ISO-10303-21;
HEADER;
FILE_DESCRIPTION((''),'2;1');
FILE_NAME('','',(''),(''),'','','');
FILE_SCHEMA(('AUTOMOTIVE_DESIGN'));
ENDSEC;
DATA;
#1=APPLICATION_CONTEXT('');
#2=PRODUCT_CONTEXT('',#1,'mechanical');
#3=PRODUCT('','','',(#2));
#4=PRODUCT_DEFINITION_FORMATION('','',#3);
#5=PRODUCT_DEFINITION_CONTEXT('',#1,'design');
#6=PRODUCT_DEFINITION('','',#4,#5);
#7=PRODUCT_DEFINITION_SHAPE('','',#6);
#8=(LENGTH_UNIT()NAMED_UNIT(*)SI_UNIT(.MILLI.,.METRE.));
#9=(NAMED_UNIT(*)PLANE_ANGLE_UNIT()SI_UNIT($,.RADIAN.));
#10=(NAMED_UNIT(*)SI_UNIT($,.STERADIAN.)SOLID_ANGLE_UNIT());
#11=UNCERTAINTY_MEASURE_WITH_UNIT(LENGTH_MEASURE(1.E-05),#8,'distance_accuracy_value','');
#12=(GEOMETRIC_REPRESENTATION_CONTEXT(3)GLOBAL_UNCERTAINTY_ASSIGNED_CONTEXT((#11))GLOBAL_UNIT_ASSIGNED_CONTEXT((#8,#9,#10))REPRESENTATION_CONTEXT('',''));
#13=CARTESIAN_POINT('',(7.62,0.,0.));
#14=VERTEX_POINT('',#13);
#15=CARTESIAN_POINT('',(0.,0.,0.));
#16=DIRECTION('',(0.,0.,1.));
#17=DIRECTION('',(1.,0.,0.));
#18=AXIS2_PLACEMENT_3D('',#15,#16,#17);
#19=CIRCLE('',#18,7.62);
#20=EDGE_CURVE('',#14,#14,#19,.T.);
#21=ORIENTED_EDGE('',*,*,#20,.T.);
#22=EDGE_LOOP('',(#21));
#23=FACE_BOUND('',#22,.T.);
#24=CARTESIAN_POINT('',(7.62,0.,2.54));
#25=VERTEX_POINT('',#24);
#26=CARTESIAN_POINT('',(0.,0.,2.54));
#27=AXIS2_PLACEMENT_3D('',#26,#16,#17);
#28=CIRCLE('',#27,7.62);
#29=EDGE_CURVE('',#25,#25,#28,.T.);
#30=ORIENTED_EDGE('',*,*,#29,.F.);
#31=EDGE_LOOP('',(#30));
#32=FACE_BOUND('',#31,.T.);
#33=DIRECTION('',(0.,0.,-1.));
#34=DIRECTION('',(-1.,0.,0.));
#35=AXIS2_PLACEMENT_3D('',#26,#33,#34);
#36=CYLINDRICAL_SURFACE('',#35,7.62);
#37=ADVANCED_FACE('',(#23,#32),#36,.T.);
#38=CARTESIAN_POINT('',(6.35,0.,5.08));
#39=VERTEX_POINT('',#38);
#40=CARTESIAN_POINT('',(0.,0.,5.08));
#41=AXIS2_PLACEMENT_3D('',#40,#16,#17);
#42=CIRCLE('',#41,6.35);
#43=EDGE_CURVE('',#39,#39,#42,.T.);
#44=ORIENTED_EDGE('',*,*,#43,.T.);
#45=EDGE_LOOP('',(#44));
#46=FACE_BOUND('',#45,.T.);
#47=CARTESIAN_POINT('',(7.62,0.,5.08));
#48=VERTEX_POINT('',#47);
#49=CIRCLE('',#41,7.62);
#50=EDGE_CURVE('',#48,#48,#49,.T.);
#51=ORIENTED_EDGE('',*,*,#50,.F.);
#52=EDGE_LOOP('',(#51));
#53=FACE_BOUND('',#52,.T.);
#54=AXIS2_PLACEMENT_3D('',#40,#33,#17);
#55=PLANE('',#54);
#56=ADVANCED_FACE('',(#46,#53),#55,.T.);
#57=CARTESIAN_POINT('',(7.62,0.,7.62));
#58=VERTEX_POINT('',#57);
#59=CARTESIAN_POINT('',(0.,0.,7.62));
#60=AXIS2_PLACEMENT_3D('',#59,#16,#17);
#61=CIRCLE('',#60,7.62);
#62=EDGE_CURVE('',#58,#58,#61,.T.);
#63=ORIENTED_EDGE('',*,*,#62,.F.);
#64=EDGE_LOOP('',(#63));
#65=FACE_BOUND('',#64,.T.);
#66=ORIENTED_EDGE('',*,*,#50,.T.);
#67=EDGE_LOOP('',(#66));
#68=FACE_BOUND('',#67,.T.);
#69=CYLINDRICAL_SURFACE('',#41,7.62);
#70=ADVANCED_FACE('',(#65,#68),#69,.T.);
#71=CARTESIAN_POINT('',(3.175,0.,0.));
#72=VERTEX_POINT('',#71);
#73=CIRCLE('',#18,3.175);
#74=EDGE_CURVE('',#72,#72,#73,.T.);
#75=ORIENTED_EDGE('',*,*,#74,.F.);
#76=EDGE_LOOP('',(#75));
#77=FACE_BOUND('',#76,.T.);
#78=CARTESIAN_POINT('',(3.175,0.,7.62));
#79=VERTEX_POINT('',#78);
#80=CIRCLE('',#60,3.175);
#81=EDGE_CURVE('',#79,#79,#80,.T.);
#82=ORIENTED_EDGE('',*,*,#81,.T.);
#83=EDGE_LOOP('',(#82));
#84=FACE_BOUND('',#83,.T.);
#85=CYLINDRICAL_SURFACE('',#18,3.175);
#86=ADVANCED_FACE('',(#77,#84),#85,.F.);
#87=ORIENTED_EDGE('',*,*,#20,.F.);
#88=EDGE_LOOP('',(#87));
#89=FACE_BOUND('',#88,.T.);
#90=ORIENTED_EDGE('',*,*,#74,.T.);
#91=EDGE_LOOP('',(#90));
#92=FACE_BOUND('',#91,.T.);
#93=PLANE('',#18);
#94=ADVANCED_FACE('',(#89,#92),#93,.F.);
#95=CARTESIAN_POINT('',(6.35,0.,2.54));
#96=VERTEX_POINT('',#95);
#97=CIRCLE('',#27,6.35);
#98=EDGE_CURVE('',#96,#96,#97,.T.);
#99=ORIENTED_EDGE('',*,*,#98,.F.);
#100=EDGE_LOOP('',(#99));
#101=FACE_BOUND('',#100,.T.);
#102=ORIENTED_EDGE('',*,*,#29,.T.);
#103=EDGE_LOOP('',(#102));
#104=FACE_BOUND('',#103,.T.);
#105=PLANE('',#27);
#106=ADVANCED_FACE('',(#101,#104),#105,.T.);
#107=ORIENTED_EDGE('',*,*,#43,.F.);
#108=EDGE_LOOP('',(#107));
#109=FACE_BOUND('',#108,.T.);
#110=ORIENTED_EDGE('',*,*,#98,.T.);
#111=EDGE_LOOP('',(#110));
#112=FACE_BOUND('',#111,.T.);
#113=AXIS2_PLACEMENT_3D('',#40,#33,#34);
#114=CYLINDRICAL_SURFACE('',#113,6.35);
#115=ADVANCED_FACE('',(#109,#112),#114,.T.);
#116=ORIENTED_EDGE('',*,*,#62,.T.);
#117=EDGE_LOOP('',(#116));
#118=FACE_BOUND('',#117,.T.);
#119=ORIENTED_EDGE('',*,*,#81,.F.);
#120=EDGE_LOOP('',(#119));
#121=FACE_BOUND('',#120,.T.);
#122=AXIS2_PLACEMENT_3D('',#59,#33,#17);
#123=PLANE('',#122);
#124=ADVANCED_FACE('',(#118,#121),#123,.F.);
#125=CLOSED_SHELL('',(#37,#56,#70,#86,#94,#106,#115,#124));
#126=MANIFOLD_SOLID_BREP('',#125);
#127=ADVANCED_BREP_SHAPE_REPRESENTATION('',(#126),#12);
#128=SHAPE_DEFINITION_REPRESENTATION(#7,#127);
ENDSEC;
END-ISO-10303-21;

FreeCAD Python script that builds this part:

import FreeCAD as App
import Part
import Sketcher
from FreeCAD import Vector
Q = App.Units.Quantity

doc = App.newDocument("Part")
body = doc.addObject("PartDesign::Body", "Body")

sketch1 = body.newObject("Sketcher::SketchObject", "Sketch")
sketch1.AttachmentSupport = (doc.getObject("XY_Plane"), [""])
sketch1.MapMode = "FlatFace"
sketch1.addGeometry(Part.Circle(Vector(0, 0, 0), Vector(0, 0, 1), 7.62), False)
sketch1.addConstraint(Sketcher.Constraint("Coincident", 0, 3, -1, 1))
sketch1.addConstraint(Sketcher.Constraint("Diameter", 0, Q("0.6 in")))
pad1 = body.newObject("PartDesign::Pad", "Pad")
pad1.Profile = sketch1
pad1.Length = Q("0.1 in")

sketch2 = body.newObject("Sketcher::SketchObject", "Sketch001")
sketch2.AttachmentSupport = (doc.getObject("XY_Plane"), [""])
sketch2.MapMode = "FlatFace"
sketch2.AttachmentOffset = App.Placement(Vector(0, 0, 0.1 * 25.4), App.Rotation())
sketch2.addGeometry(Part.Circle(Vector(0, 0, 0), Vector(0, 0, 1), 6.35), False)
sketch2.addConstraint(Sketcher.Constraint("Coincident", 0, 3, -1, 1))
sketch2.addConstraint(Sketcher.Constraint("Diameter", 0, Q("0.5 in")))
pad2 = body.newObject("PartDesign::Pad", "Pad001")
pad2.Profile = sketch2
pad2.Length = Q("0.1 in")
doc.recompute()

datumplane = body.newObject("PartDesign::Plane", "DatumPlane")
datumplane.AttachmentSupport = (doc.getObject("XY_Plane"), [""])
datumplane.MapMode = "FlatFace"
datumplane.AttachmentOffset = App.Placement(Vector(0, 0, 0.15 * 25.4), App.Rotation())
mirrored = body.newObject("PartDesign::Mirrored", "Mirrored")
mirrored.Originals = [pad1]
mirrored.MirrorPlane = (datumplane, [""])
body.Tip = mirrored

sketch3 = body.newObject("Sketcher::SketchObject", "Sketch002")
sketch3.AttachmentSupport = (doc.getObject("XY_Plane"), [""])
sketch3.MapMode = "FlatFace"
sketch3.AttachmentOffset = App.Placement(Vector(0, 0, 0.3 * 25.4), App.Rotation())
sketch3.addGeometry(Part.Circle(Vector(0, 0, 0), Vector(0, 0, 1), 3.175), False)
sketch3.addConstraint(Sketcher.Constraint("Coincident", 0, 3, -1, 1))
sketch3.addConstraint(Sketcher.Constraint("Diameter", 0, Q("0.25 in")))
pocket1 = body.newObject("PartDesign::Pocket", "Pocket")
pocket1.Profile = sketch3
pocket1.Type = "ThroughAll"

doc.recompute()
